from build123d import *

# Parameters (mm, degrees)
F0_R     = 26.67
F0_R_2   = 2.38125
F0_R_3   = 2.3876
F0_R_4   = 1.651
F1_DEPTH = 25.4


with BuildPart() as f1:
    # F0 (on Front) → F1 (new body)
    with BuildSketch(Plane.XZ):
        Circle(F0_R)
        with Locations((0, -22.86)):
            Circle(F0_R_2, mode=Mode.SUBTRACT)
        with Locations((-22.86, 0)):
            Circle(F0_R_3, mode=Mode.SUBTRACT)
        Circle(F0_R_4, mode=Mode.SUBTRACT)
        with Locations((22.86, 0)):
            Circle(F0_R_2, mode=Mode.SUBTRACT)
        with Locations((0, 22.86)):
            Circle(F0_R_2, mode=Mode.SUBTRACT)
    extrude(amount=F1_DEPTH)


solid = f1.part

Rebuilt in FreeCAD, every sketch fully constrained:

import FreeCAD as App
import Part
import Sketcher

V = App.Vector
Q = App.Units.Quantity

doc = App.newDocument("Part")
body = doc.addObject("PartDesign::Body", "Body")

# Sketch on XZ plane
sketch1 = doc.addObject("Sketcher::SketchObject", "Sketch")
body.addObject(sketch1)
sketch1.AttachmentSupport = (doc.XZ_Plane, [""])
sketch1.MapMode = "FlatFace"
sketch1.addGeometry([
    Part.Circle(V(0, 0, 0), V(0, 0, 1), 26.67),  # 0
    Part.Circle(V(0, -22.86, 0), V(0, 0, 1), 2.38125),  # 1
    Part.Circle(V(-22.86, 0, 0), V(0, 0, 1), 2.3876),  # 2
    Part.Circle(V(0, 0, 0), V(0, 0, 1), 1.651),  # 3
    Part.Circle(V(22.86, 0, 0), V(0, 0, 1), 2.38125),  # 4
    Part.Circle(V(0, 22.86, 0), V(0, 0, 1), 2.38125),  # 5
], False)
sketch1.addConstraint([
    Sketcher.Constraint("Coincident", 0, 3, -1, 1),
    Sketcher.Constraint("Coincident", 3, 3, -1, 1),
    Sketcher.Constraint("Equal", 1, 4),
    Sketcher.Constraint("Equal", 4, 5),
    Sketcher.Constraint("Symmetric", 2, 3, 4, 3, -1, 1),
    Sketcher.Constraint("Symmetric", 1, 3, 5, 3, -1, 1),
    Sketcher.Constraint("PointOnObject", 1, 3, -2),
    Sketcher.Constraint("PointOnObject", 2, 3, -1),
    Sketcher.Constraint("Diameter", 0, Q("2.1 in")),
    Sketcher.Constraint("Diameter", 3, Q("0.13 in")),
    Sketcher.Constraint("Diameter", 1, Q("0.1875 in")),
    Sketcher.Constraint("Diameter", 2, Q("0.188 in")),
    Sketcher.Constraint("DistanceY", 1, 3, -1, 1, Q("0.9 in")),
    Sketcher.Constraint("DistanceX", 2, 3, -1, 1, Q("0.9 in")),
])
pad1 = doc.addObject("PartDesign::Pad", "Pad")
body.addObject(pad1)
pad1.Profile = sketch1
pad1.Length = Q("1 in")

doc.recompute()
